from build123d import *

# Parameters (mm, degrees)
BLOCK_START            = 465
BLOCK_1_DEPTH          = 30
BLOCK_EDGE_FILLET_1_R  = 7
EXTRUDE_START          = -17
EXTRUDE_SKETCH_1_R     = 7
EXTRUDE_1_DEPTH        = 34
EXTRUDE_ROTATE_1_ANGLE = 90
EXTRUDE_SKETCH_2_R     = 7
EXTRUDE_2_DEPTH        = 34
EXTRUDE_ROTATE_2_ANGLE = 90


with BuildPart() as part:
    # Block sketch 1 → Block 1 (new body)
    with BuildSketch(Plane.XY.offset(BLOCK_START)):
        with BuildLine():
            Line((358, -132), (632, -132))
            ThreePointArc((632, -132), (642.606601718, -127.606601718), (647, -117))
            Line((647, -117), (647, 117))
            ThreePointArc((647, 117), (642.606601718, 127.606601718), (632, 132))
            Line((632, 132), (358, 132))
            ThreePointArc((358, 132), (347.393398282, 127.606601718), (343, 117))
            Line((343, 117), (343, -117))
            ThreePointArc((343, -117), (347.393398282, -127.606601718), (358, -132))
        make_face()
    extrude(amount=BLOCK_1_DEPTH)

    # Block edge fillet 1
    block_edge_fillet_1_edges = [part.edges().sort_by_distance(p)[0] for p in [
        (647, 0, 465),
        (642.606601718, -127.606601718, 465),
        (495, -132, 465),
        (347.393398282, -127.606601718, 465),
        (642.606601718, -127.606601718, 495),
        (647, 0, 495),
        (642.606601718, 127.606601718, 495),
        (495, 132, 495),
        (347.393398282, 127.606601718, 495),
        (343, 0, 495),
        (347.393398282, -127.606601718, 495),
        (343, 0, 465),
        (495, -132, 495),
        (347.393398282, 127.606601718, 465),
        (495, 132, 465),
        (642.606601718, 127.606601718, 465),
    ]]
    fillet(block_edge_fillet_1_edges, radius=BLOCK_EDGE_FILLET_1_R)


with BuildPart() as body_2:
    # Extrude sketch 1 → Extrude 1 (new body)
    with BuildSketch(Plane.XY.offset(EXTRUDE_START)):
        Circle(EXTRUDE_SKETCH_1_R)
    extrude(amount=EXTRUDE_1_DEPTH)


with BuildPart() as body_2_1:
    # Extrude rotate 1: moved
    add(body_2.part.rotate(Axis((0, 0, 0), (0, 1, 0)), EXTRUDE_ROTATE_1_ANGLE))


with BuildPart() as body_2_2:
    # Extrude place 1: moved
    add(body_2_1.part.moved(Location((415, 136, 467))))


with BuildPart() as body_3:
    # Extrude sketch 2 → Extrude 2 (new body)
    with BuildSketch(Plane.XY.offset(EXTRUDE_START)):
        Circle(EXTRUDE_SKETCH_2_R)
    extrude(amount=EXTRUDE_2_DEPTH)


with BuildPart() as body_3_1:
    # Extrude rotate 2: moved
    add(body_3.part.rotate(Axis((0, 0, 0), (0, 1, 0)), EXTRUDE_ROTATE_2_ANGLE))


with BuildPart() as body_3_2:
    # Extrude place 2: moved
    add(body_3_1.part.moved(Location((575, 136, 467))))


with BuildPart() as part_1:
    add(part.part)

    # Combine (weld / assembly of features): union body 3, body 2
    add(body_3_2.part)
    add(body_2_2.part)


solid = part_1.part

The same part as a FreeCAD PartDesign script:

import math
import FreeCAD as App
import Part
import Sketcher
Q = App.Units.Quantity


def edges_at(feature, points):
    """Names of the edges that pass closest to the given points."""
    edges = feature.Shape.Edges
    near = lambda p: min(range(len(edges)), key=lambda i: edges[i].distToShape(Part.Vertex(*p))[0])
    return sorted({f"Edge{near(p) + 1}" for p in points})

doc = App.newDocument("Part")
params = doc.addObject("Spreadsheet::Sheet", "Params")
for row, (alias, value) in enumerate([
    ("sketch1_radius", "15 mm"),
    ("sketch1_width", "274 mm"),
    ("sketch1_height", "234 mm"),
    ("pad1_length", "30 mm"),
    ("fillet_radius", "7 mm"),
    ("sketch2_diameter", "14 mm"),
    ("pad2_length", "34 mm"),
    ("sketch3_diameter", "14 mm"),
    ("pad3_length", "34 mm"),
], start=1):
    params.set(f"A{row}", alias)
    params.set(f"B{row}", "=" + value)
    params.setAlias(f"B{row}", alias)

body = doc.addObject("PartDesign::Body", "Body")

# Sketch on XY plane
sketch1 = body.newObject("Sketcher::SketchObject", "Sketch")
sketch1.AttachmentSupport = (doc.getObject("XY_Plane"), [""])
sketch1.MapMode = "FlatFace"
sketch1.AttachmentOffset = App.Placement(App.Vector(0, 0, 465), App.Rotation())
sketch1.addGeometry([
    Part.LineSegment(App.Vector(358, -132, 0), App.Vector(632, -132, 0)),  # 0
    Part.ArcOfCircle(Part.Circle(App.Vector(632, -117, 0), App.Vector(0, 0, 1), 15), math.radians(-90), math.radians(0)),  # 1
    Part.LineSegment(App.Vector(647, -117, 0), App.Vector(647, 117, 0)),  # 2
    Part.ArcOfCircle(Part.Circle(App.Vector(632, 117, 0), App.Vector(0, 0, 1), 15), math.radians(0), math.radians(90)),  # 3
    Part.LineSegment(App.Vector(632, 132, 0), App.Vector(358, 132, 0)),  # 4
    Part.ArcOfCircle(Part.Circle(App.Vector(358, 117, 0), App.Vector(0, 0, 1), 15), math.radians(90), math.radians(180)),  # 5
    Part.LineSegment(App.Vector(343, 117, 0), App.Vector(343, -117, 0)),  # 6
    Part.ArcOfCircle(Part.Circle(App.Vector(358, -117, 0), App.Vector(0, 0, 1), 15), math.radians(180), math.radians(270)),  # 7
], False)
sketch1.addConstraint([
    Sketcher.Constraint("Tangent", 0, 2, 1, 1),
    Sketcher.Constraint("Tangent", 1, 2, 2, 1),
    Sketcher.Constraint("Tangent", 2, 2, 3, 1),
    Sketcher.Constraint("Tangent", 3, 2, 4, 1),
    Sketcher.Constraint("Tangent", 4, 2, 5, 1),
    Sketcher.Constraint("Tangent", 5, 2, 6, 1),
    Sketcher.Constraint("Tangent", 6, 2, 7, 1),
    Sketcher.Constraint("Tangent", 7, 2, 0, 1),
    Sketcher.Constraint("Horizontal", 0),
    Sketcher.Constraint("Vertical", 2),
    Sketcher.Constraint("Horizontal", 4),
    Sketcher.Constraint("Vertical", 6),
    Sketcher.Constraint("Equal", 1, 3),
    Sketcher.Constraint("Equal", 3, 5),
    Sketcher.Constraint("Equal", 5, 7),
    Sketcher.Constraint("Radius", 1, Q("15 mm")),
    Sketcher.Constraint("DistanceX", 0, 1, 0, 2, Q("274 mm")),
    Sketcher.Constraint("DistanceY", 2, 1, 2, 2, Q("234 mm")),
    Sketcher.Constraint("DistanceX", -1, 1, 1, 3, Q("632 mm")),
    Sketcher.Constraint("DistanceY", 1, 3, -1, 1, Q("117 mm")),
])
sketch1.setExpression("Constraints[15]", "Params.sketch1_radius")
sketch1.setExpression("Constraints[16]", "Params.sketch1_width")
sketch1.setExpression("Constraints[17]", "Params.sketch1_height")
pad1 = body.newObject("PartDesign::Pad", "Pad")
pad1.Profile = sketch1
pad1.setExpression("Length", "Params.pad1_length")
doc.recompute()

fillet = body.newObject("PartDesign::Fillet", "Fillet")
fillet.Base = (pad1, edges_at(pad1, [
    (647, 0, 465),
    (642.607, -127.607, 465),
    (495, -132, 465),
    (347.393, -127.607, 465),
    (642.607, -127.607, 495),
    (647, 0, 495),
    (642.607, 127.607, 495),
    (495, 132, 495),
    (347.393, 127.607, 495),
    (343, 0, 495),
    (347.393, -127.607, 495),
    (343, 0, 465),
    (495, -132, 495),
    (347.393, 127.607, 465),
    (495, 132, 465),
    (642.607, 127.607, 465),
]))
fillet.setExpression("Radius", "Params.fillet_radius")
body2 = doc.addObject("PartDesign::Body", "Body001")

# Sketch on XY plane
sketch2 = body2.newObject("Sketcher::SketchObject", "Sketch001")
sketch2.AttachmentSupport = (doc.getObject("XY_Plane001"), [""])
sketch2.MapMode = "FlatFace"
sketch2.AttachmentOffset = App.Placement(App.Vector(0, 0, -17), App.Rotation())
sketch2.addGeometry(Part.Circle(App.Vector(0, 0, 0), App.Vector(0, 0, 1), 7), False)
sketch2.addConstraint([
    Sketcher.Constraint("Coincident", 0, 3, -1, 1),
    Sketcher.Constraint("Diameter", 0, Q("14 mm")),
])
sketch2.setExpression("Constraints[1]", "Params.sketch2_diameter")
pad2 = body2.newObject("PartDesign::Pad", "Pad001")
pad2.Profile = sketch2
pad2.setExpression("Length", "Params.pad2_length")
body3 = doc.addObject("PartDesign::Body", "Body002")
doc.recompute()

body2.Placement = App.Placement(App.Vector(0, 0, 0), App.Rotation(App.Vector(0, 1, 0), 90))
boolean = body3.newObject("PartDesign::Boolean", "Boolean")
boolean.Type = "Fuse"
boolean.addObjects([body2])
body4 = doc.addObject("PartDesign::Body", "Body003")
doc.recompute()

body3.Placement = App.Placement(App.Vector(415, 136, 467), App.Rotation(App.Vector(0, 0, 1), 0))
boolean2 = body4.newObject("PartDesign::Boolean", "Boolean001")
boolean2.Type = "Fuse"
boolean2.addObjects([body3])
body5 = doc.addObject("PartDesign::Body", "Body004")

# Sketch on XY plane
sketch3 = body5.newObject("Sketcher::SketchObject", "Sketch002")
sketch3.AttachmentSupport = (doc.getObject("XY_Plane004"), [""])
sketch3.MapMode = "FlatFace"
sketch3.AttachmentOffset = App.Placement(App.Vector(0, 0, -17), App.Rotation())
sketch3.addGeometry(Part.Circle(App.Vector(0, 0, 0), App.Vector(0, 0, 1), 7), False)
sketch3.addConstraint([
    Sketcher.Constraint("Coincident", 0, 3, -1, 1),
    Sketcher.Constraint("Diameter", 0, Q("14 mm")),
])
sketch3.setExpression("Constraints[1]", "Params.sketch3_diameter")
pad3 = body5.newObject("PartDesign::Pad", "Pad002")
pad3.Profile = sketch3
pad3.setExpression("Length", "Params.pad3_length")
body6 = doc.addObject("PartDesign::Body", "Body005")
doc.recompute()

body5.Placement = App.Placement(App.Vector(0, 0, 0), App.Rotation(App.Vector(0, 1, 0), 90))
boolean3 = body6.newObject("PartDesign::Boolean", "Boolean002")
boolean3.Type = "Fuse"
boolean3.addObjects([body5])
body7 = doc.addObject("PartDesign::Body", "Body006")
doc.recompute()

body6.Placement = App.Placement(App.Vector(575, 136, 467), App.Rotation(App.Vector(0, 0, 1), 0))
boolean4 = body7.newObject("PartDesign::Boolean", "Boolean003")
boolean4.Type = "Fuse"
boolean4.addObjects([body6])
doc.recompute()

boolean5 = body.newObject("PartDesign::Boolean", "Boolean004")
boolean5.Type = "Fuse"
boolean5.addObjects([body7])
doc.recompute()

boolean6 = body.newObject("PartDesign::Boolean", "Boolean005")
boolean6.Type = "Fuse"
boolean6.addObjects([body4])

doc.recompute()
